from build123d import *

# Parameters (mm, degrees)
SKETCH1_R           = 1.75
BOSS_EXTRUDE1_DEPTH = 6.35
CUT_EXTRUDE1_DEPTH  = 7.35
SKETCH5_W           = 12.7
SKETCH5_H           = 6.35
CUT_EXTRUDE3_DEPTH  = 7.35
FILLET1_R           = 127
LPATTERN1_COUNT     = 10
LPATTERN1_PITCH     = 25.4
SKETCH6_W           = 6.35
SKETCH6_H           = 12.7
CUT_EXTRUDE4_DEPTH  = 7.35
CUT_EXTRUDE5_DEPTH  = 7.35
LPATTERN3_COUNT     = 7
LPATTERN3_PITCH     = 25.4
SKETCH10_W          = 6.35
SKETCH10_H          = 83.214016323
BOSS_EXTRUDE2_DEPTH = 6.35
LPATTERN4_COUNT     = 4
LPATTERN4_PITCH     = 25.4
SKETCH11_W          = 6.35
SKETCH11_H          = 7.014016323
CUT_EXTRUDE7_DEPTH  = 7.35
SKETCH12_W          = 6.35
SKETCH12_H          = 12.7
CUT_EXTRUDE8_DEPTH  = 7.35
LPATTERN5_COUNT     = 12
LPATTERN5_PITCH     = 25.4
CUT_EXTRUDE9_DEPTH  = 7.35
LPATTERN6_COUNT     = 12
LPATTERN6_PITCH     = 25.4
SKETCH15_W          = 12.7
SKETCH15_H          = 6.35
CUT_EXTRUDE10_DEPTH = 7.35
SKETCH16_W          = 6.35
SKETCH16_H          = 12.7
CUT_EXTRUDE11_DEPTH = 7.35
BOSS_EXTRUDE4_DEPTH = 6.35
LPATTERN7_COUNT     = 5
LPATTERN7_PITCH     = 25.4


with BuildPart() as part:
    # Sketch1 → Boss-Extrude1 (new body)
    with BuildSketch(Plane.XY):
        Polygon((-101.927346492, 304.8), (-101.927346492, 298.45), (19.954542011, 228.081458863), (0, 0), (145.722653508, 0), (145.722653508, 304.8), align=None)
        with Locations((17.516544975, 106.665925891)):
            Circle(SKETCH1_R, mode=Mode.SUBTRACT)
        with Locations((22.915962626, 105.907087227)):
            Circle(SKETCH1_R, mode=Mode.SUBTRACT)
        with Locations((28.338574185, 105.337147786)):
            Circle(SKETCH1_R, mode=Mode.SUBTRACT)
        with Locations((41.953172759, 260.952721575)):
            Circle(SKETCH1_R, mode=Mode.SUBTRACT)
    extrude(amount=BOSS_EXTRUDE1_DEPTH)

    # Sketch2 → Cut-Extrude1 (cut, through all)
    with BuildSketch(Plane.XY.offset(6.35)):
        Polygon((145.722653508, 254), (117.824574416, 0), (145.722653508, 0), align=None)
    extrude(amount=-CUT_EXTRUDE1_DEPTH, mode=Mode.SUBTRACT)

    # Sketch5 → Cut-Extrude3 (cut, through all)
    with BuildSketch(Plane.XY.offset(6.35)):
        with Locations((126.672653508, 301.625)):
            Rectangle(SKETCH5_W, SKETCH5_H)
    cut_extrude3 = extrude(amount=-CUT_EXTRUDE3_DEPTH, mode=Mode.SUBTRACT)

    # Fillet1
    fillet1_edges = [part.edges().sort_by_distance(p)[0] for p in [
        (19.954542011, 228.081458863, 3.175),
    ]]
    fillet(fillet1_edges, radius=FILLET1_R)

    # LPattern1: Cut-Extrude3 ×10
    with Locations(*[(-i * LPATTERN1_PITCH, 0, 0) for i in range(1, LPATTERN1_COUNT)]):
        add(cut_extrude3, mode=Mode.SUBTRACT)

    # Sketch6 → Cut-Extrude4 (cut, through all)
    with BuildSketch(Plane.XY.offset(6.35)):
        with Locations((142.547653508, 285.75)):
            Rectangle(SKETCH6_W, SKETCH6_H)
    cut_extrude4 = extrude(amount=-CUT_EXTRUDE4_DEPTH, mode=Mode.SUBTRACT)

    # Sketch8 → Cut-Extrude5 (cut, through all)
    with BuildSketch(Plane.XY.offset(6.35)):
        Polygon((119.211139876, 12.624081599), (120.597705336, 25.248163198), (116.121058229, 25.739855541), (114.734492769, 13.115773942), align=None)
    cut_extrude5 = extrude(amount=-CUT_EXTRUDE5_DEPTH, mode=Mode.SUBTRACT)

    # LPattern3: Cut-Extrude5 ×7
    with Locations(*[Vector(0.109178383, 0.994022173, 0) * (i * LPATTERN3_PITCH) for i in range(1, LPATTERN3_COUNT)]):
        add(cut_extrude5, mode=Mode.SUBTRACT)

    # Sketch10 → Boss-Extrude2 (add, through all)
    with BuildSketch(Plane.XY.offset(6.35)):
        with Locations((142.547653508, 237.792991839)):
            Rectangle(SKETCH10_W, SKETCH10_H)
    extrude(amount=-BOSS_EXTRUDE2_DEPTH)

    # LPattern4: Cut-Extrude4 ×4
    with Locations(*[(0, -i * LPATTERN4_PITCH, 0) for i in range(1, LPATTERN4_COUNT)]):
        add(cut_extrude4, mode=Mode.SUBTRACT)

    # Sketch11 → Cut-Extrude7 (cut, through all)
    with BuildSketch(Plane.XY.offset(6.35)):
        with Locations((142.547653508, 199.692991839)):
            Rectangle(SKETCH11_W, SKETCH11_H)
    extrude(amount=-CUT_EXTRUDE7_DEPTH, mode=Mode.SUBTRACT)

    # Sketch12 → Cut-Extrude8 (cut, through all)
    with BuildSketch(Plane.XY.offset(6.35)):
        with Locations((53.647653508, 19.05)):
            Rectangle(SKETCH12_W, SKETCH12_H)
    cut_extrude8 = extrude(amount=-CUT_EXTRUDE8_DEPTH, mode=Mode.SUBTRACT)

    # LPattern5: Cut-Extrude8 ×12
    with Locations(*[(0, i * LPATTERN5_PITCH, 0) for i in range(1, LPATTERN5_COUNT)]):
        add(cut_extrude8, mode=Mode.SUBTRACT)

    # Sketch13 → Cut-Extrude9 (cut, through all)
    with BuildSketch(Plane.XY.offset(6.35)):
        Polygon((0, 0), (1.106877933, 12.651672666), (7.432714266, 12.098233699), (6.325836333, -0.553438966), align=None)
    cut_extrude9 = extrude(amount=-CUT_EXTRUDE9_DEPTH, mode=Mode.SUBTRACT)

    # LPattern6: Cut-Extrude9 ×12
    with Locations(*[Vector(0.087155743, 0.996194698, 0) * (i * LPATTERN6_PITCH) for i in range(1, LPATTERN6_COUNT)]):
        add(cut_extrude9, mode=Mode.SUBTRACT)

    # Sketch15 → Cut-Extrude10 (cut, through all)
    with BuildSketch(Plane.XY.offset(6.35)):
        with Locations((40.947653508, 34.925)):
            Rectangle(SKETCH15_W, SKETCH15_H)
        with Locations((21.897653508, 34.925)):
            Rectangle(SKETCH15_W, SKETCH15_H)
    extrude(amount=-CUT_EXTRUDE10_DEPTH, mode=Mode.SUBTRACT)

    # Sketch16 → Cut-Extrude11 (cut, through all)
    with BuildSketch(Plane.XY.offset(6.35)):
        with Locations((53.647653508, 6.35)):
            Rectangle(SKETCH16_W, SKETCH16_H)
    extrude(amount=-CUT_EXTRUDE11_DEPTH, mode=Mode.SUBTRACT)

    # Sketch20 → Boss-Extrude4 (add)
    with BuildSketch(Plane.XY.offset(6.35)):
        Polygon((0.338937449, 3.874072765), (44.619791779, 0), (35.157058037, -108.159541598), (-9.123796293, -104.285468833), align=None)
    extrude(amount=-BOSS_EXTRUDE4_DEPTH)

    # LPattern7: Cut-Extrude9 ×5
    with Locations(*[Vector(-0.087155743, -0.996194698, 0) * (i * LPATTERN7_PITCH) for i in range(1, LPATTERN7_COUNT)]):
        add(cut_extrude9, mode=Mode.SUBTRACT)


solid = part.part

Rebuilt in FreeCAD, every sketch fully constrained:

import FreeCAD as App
import Part
import Sketcher
Q = App.Units.Quantity


def edges_at(feature, points):
    """Names of the edges that pass closest to the given points."""
    edges = feature.Shape.Edges
    near = lambda p: min(range(len(edges)), key=lambda i: edges[i].distToShape(Part.Vertex(*p))[0])
    return sorted({f"Edge{near(p) + 1}" for p in points})

doc = App.newDocument("Part")
body = doc.addObject("PartDesign::Body", "Body")

# Sketch on XY plane
sketch1 = doc.addObject("Sketcher::SketchObject", "Sketch")
body.addObject(sketch1)
sketch1.AttachmentSupport = (doc.XY_Plane, [""])
sketch1.MapMode = "FlatFace"
sketch1.addGeometry([
    Part.LineSegment(App.Vector(-101.9, 304.8, 0), App.Vector(-101.9, 298.4, 0)),  # 0
    Part.LineSegment(App.Vector(-101.9, 298.4, 0), App.Vector(20, 228.1, 0)),  # 1
    Part.LineSegment(App.Vector(20, 228.1, 0), App.Vector(0, 0, 0)),  # 2
    Part.LineSegment(App.Vector(0, 0, 0), App.Vector(145.7, 0, 0)),  # 3
    Part.LineSegment(App.Vector(145.7, 0, 0), App.Vector(145.7, 304.8, 0)),  # 4
    Part.LineSegment(App.Vector(145.7, 304.8, 0), App.Vector(-101.9, 304.8, 0)),  # 5
    Part.Circle(App.Vector(17.5, 106.7, 0), App.Vector(0, 0, 1), 1.8),  # 6
    Part.Circle(App.Vector(22.9, 105.9, 0), App.Vector(0, 0, 1), 1.8),  # 7
    Part.Circle(App.Vector(28.3, 105.3, 0), App.Vector(0, 0, 1), 1.8),  # 8
    Part.Circle(App.Vector(42, 261, 0), App.Vector(0, 0, 1), 1.8),  # 9
], False)
sketch1.addConstraint([
    Sketcher.Constraint("Coincident", 0, 2, 1, 1),
    Sketcher.Constraint("Coincident", 1, 2, 2, 1),
    Sketcher.Constraint("Coincident", 2, 2, 3, 1),
    Sketcher.Constraint("Coincident", 3, 2, 4, 1),
    Sketcher.Constraint("Coincident", 4, 2, 5, 1),
    Sketcher.Constraint("Coincident", 5, 2, 0, 1),
    Sketcher.Constraint("Vertical", 0),
    Sketcher.Constraint("Horizontal", 3),
    Sketcher.Constraint("Vertical", 4),
    Sketcher.Constraint("Horizontal", 5),
    Sketcher.Constraint("Coincident", 2, 2, -1, 1),
    Sketcher.Constraint("Equal", 6, 7),
    Sketcher.Constraint("Equal", 7, 8),
    Sketcher.Constraint("Equal", 8, 9),
    Sketcher.Constraint("DistanceY", 4, 1, 4, 2, Q("12 in")),
    Sketcher.Constraint("Angle", 1, Q("-30 deg")),
    Sketcher.Constraint("Angle", 2, Q("-95 deg")),
    Sketcher.Constraint("DistanceX", 5, 2, 5, 1, Q("9.75 in")),
    Sketcher.Constraint("DistanceY", 0, 2, 0, 1, Q("0.25 in")),
    Sketcher.Constraint("Diameter", 6, Q("3.5 mm")),
    Sketcher.Constraint("DistanceX", 8, 3, 9, 3, Q("13.614599 mm")),
    Sketcher.Constraint("DistanceX", 3, 1, 3, 2, Q("145.722654 mm")),
    Sketcher.Constraint("DistanceY", -1, 1, 9, 3, Q("260.952722 mm")),
    Sketcher.Constraint("DistanceY", 7, 3, 6, 3, Q("0.758839 mm")),
    Sketcher.Constraint("DistanceX", 7, 3, 8, 3, Q("5.422612 mm")),
    Sketcher.Constraint("DistanceY", 8, 3, 7, 3, Q("0.569939 mm")),
    Sketcher.Constraint("DistanceX", 6, 3, 8, 3, Q("10.822029 mm")),
    Sketcher.Constraint("DistanceX", 0, 2, 9, 3, Q("143.880519 mm")),
    Sketcher.Constraint("DistanceY", 7, 3, 1, 2, Q("122.174372 mm")),
])
pad1 = doc.addObject("PartDesign::Pad", "Pad")
body.addObject(pad1)
pad1.Profile = sketch1
pad1.Length = Q("0.25 in")

# Sketch on XY plane
sketch2 = doc.addObject("Sketcher::SketchObject", "Sketch001")
body.addObject(sketch2)
sketch2.AttachmentSupport = (doc.XY_Plane, [""])
sketch2.MapMode = "FlatFace"
sketch2.AttachmentOffset = App.Placement(App.Vector(0, 0, 0.25 * 25.4), App.Rotation())
sketch2.addGeometry([
    Part.LineSegment(App.Vector(146, 254, 0), App.Vector(118, 0, 0)),
    Part.LineSegment(App.Vector(118, 0, 0), App.Vector(146, 0, 0)),
    Part.LineSegment(App.Vector(146, 0, 0), App.Vector(146, 254, 0)),
], False)
sketch2.addConstraint([
    Sketcher.Constraint("Coincident", 0, 2, 1, 1),
    Sketcher.Constraint("Coincident", 1, 2, 2, 1),
    Sketcher.Constraint("Coincident", 2, 2, 0, 1),
    Sketcher.Constraint("Horizontal", 1),
    Sketcher.Constraint("Vertical", 2),
    Sketcher.Constraint("PointOnObject", 0, 2, -1),
    Sketcher.Constraint("DistanceY", 2, 1, 2, 2, Q("10 in")),
    Sketcher.Constraint("Distance", 0, Q("255.527499 mm")),
    Sketcher.Constraint("DistanceX", -1, 1, 0, 2, Q("117.824574 mm")),
])
pocket1 = doc.addObject("PartDesign::Pocket", "Pocket")
body.addObject(pocket1)
pocket1.Profile = sketch2
pocket1.Type = "ThroughAll"

# Sketch on XY plane
sketch3 = doc.addObject("Sketcher::SketchObject", "Sketch002")
body.addObject(sketch3)
sketch3.AttachmentSupport = (doc.XY_Plane, [""])
sketch3.MapMode = "FlatFace"
sketch3.AttachmentOffset = App.Placement(App.Vector(0, 0, 0.25 * 25.4), App.Rotation())
sketch3.addGeometry([
    Part.LineSegment(App.Vector(120, 305, 0), App.Vector(120, 298, 0)),
    Part.LineSegment(App.Vector(120, 298, 0), App.Vector(133, 298, 0)),
    Part.LineSegment(App.Vector(133, 298, 0), App.Vector(133, 305, 0)),
    Part.LineSegment(App.Vector(133, 305, 0), App.Vector(120, 305, 0)),
], False)
sketch3.addConstraint([
    Sketcher.Constraint("Coincident", 0, 2, 1, 1),
    Sketcher.Constraint("Coincident", 1, 2, 2, 1),
    Sketcher.Constraint("Coincident", 2, 2, 3, 1),
    Sketcher.Constraint("Coincident", 3, 2, 0, 1),
    Sketcher.Constraint("Vertical", 0),
    Sketcher.Constraint("Horizontal", 1),
    Sketcher.Constraint("Vertical", 2),
    Sketcher.Constraint("Horizontal", 3),
    Sketcher.Constraint("DistanceX", 1, 1, 1, 2, Q("0.5 in")),
    Sketcher.Constraint("DistanceY", -1, 1, 2, 2, Q("12 in")),
    Sketcher.Constraint("DistanceY", 0, 2, 0, 1, Q("0.25 in")),
    Sketcher.Constraint("DistanceX", -1, 1, 0, 2, Q("120.322654 mm")),
])
pocket2 = doc.addObject("PartDesign::Pocket", "Pocket001")
body.addObject(pocket2)
pocket2.Profile = sketch3
pocket2.Type = "ThroughAll"
doc.recompute()

fillet = doc.addObject("PartDesign::Fillet", "Fillet")
body.addObject(fillet)
fillet.Base = (pocket2, edges_at(pocket2, [(19.955, 228.081, 3.175)]))
fillet.Radius = Q("5 in")
doc.recompute()

linearpattern = doc.addObject("PartDesign::LinearPattern", "LinearPattern")
body.addObject(linearpattern)
linearpattern.Originals = [pocket2]
linearpattern.Direction = (doc.X_Axis, [""])
linearpattern.Mode = "offset"
linearpattern.Offset = Q("1 in")
linearpattern.Occurrences = 10
linearpattern.Reversed = True
body.Tip = linearpattern

# Sketch on XY plane
sketch4 = doc.addObject("Sketcher::SketchObject", "Sketch003")
body.addObject(sketch4)
sketch4.AttachmentSupport = (doc.XY_Plane, [""])
sketch4.MapMode = "FlatFace"
sketch4.AttachmentOffset = App.Placement(App.Vector(0, 0, 0.25 * 25.4), App.Rotation())
sketch4.addGeometry([
    Part.LineSegment(App.Vector(139, 292, 0), App.Vector(139, 279, 0)),
    Part.LineSegment(App.Vector(139, 279, 0), App.Vector(146, 279, 0)),
    Part.LineSegment(App.Vector(146, 279, 0), App.Vector(146, 292, 0)),
    Part.LineSegment(App.Vector(146, 292, 0), App.Vector(139, 292, 0)),
], False)
sketch4.addConstraint([
    Sketcher.Constraint("Coincident", 0, 2, 1, 1),
    Sketcher.Constraint("Coincident", 1, 2, 2, 1),
    Sketcher.Constraint("Coincident", 2, 2, 3, 1),
    Sketcher.Constraint("Coincident", 3, 2, 0, 1),
    Sketcher.Constraint("Vertical", 0),
    Sketcher.Constraint("Horizontal", 1),
    Sketcher.Constraint("Vertical", 2),
    Sketcher.Constraint("Horizontal", 3),
    Sketcher.Constraint("DistanceY", 0, 2, 0, 1, Q("0.5 in")),
    Sketcher.Constraint("DistanceY", -1, 1, 0, 2, Q("11 in")),
    Sketcher.Constraint("DistanceX", 1, 1, 1, 2, Q("0.25 in")),
    Sketcher.Constraint("DistanceX", -1, 1, 0, 2, Q("139.372654 mm")),
])
pocket3 = doc.addObject("PartDesign::Pocket", "Pocket002")
body.addObject(pocket3)
pocket3.Profile = sketch4
pocket3.Type = "ThroughAll"

# Sketch on XY plane
sketch5 = doc.addObject("Sketcher::SketchObject", "Sketch004")
body.addObject(sketch5)
sketch5.AttachmentSupport = (doc.XY_Plane, [""])
sketch5.MapMode = "FlatFace"
sketch5.AttachmentOffset = App.Placement(App.Vector(0, 0, 0.25 * 25.4), App.Rotation())
sketch5.addGeometry([
    Part.LineSegment(App.Vector(119.2, 12.6, 0), App.Vector(120.6, 25.2, 0)),
    Part.LineSegment(App.Vector(120.6, 25.2, 0), App.Vector(116.1, 25.7, 0)),
    Part.LineSegment(App.Vector(116.1, 25.7, 0), App.Vector(114.7, 13.1, 0)),
    Part.LineSegment(App.Vector(114.7, 13.1, 0), App.Vector(119.2, 12.6, 0)),
], False)
sketch5.addConstraint([
    Sketcher.Constraint("Coincident", 0, 2, 1, 1),
    Sketcher.Constraint("Coincident", 1, 2, 2, 1),
    Sketcher.Constraint("Coincident", 2, 2, 3, 1),
    Sketcher.Constraint("Coincident", 3, 2, 0, 1),
    Sketcher.Constraint("Perpendicular", 0, 1),
    Sketcher.Constraint("Perpendicular", 1, 2),
    Sketcher.Constraint("Perpendicular", 2, 3),
    Sketcher.Constraint("Distance", 0, Q("0.5 in")),
    Sketcher.Constraint("Distance", 1, Q("4.503569 mm")),
    Sketcher.Constraint("DistanceX", -1, 1, 1, 2, Q("116.121058 mm")),
    Sketcher.Constraint("DistanceX", -1, 1, 3, 2, Q("119.21114 mm")),
    Sketcher.Constraint("DistanceY", -1, 1, 3, 2, Q("12.624082 mm")),
])
pocket4 = doc.addObject("PartDesign::Pocket", "Pocket003")
body.addObject(pocket4)
pocket4.Profile = sketch5
pocket4.Type = "ThroughAll"
doc.recompute()

datumline = doc.addObject("PartDesign::Line", "DatumLine")
body.addObject(datumline)
datumline.Placement = App.Placement(App.Vector(0, 0, 0), App.Rotation(App.Vector(0, 0, 1), App.Vector(0.109178383, 0.994022173, 0)))
linearpattern2 = doc.addObject("PartDesign::LinearPattern", "LinearPattern001")
body.addObject(linearpattern2)
linearpattern2.Originals = [pocket4]
linearpattern2.Direction = (datumline, [""])
linearpattern2.Mode = "offset"
linearpattern2.Offset = Q("1 in")
linearpattern2.Occurrences = 7
body.Tip = linearpattern2

# Sketch on XY plane
sketch6 = doc.addObject("Sketcher::SketchObject", "Sketch005")
body.addObject(sketch6)
sketch6.AttachmentSupport = (doc.XY_Plane, [""])
sketch6.MapMode = "FlatFace"
sketch6.AttachmentOffset = App.Placement(App.Vector(0, 0, 0.25 * 25.4), App.Rotation())
sketch6.addGeometry([
    Part.LineSegment(App.Vector(139, 279, 0), App.Vector(139, 196, 0)),
    Part.LineSegment(App.Vector(139, 196, 0), App.Vector(146, 196, 0)),
    Part.LineSegment(App.Vector(146, 196, 0), App.Vector(146, 279, 0)),
    Part.LineSegment(App.Vector(146, 279, 0), App.Vector(139, 279, 0)),
], False)
sketch6.addConstraint([
    Sketcher.Constraint("Coincident", 0, 2, 1, 1),
    Sketcher.Constraint("Coincident", 1, 2, 2, 1),
    Sketcher.Constraint("Coincident", 2, 2, 3, 1),
    Sketcher.Constraint("Coincident", 3, 2, 0, 1),
    Sketcher.Constraint("Vertical", 0),
    Sketcher.Constraint("Horizontal", 1),
    Sketcher.Constraint("Vertical", 2),
    Sketcher.Constraint("Horizontal", 3),
    Sketcher.Constraint("DistanceY", -1, 1, 2, 2, Q("11 in")),
    Sketcher.Constraint("DistanceX", 1, 1, 1, 2, Q("0.25 in")),
    Sketcher.Constraint("DistanceY", 0, 2, 0, 1, Q("83.214016 mm")),
    Sketcher.Constraint("DistanceX", -1, 1, 0, 2, Q("139.372654 mm")),
])
pad2 = doc.addObject("PartDesign::Pad", "Pad001")
body.addObject(pad2)
pad2.Profile = sketch6
pad2.Type = "UpToLast"
pad2.Reversed = True
doc.recompute()

linearpattern3 = doc.addObject("PartDesign::LinearPattern", "LinearPattern002")
body.addObject(linearpattern3)
linearpattern3.Originals = [pocket3]
linearpattern3.Direction = (doc.Y_Axis, [""])
linearpattern3.Mode = "offset"
linearpattern3.Offset = Q("1 in")
linearpattern3.Occurrences = 4
linearpattern3.Reversed = True
body.Tip = linearpattern3

# Sketch on XY plane
sketch7 = doc.addObject("Sketcher::SketchObject", "Sketch006")
body.addObject(sketch7)
sketch7.AttachmentSupport = (doc.XY_Plane, [""])
sketch7.MapMode = "FlatFace"
sketch7.AttachmentOffset = App.Placement(App.Vector(0, 0, 0.25 * 25.4), App.Rotation())
sketch7.addGeometry([
    Part.LineSegment(App.Vector(139, 203, 0), App.Vector(139, 196, 0)),
    Part.LineSegment(App.Vector(139, 196, 0), App.Vector(146, 196, 0)),
    Part.LineSegment(App.Vector(146, 196, 0), App.Vector(146, 203, 0)),
    Part.LineSegment(App.Vector(146, 203, 0), App.Vector(139, 203, 0)),
], False)
sketch7.addConstraint([
    Sketcher.Constraint("Coincident", 0, 2, 1, 1),
    Sketcher.Constraint("Coincident", 1, 2, 2, 1),
    Sketcher.Constraint("Coincident", 2, 2, 3, 1),
    Sketcher.Constraint("Coincident", 3, 2, 0, 1),
    Sketcher.Constraint("Vertical", 0),
    Sketcher.Constraint("Horizontal", 1),
    Sketcher.Constraint("Vertical", 2),
    Sketcher.Constraint("Horizontal", 3),
    Sketcher.Constraint("DistanceY", -1, 1, 2, 2, Q("8 in")),
    Sketcher.Constraint("DistanceX", 1, 1, 1, 2, Q("0.25 in")),
    Sketcher.Constraint("DistanceY", 0, 2, 0, 1, Q("7.014016 mm")),
    Sketcher.Constraint("DistanceX", -1, 1, 0, 2, Q("139.372654 mm")),
])
pocket5 = doc.addObject("PartDesign::Pocket", "Pocket004")
body.addObject(pocket5)
pocket5.Profile = sketch7
pocket5.Type = "ThroughAll"

# Sketch on XY plane
sketch8 = doc.addObject("Sketcher::SketchObject", "Sketch007")
body.addObject(sketch8)
sketch8.AttachmentSupport = (doc.XY_Plane, [""])
sketch8.MapMode = "FlatFace"
sketch8.AttachmentOffset = App.Placement(App.Vector(0, 0, 0.25 * 25.4), App.Rotation())
sketch8.addGeometry([
    Part.LineSegment(App.Vector(50, 25, 0), App.Vector(50, 13, 0)),
    Part.LineSegment(App.Vector(50, 13, 0), App.Vector(57, 13, 0)),
    Part.LineSegment(App.Vector(57, 13, 0), App.Vector(57, 25, 0)),
    Part.LineSegment(App.Vector(57, 25, 0), App.Vector(50, 25, 0)),
], False)
sketch8.addConstraint([
    Sketcher.Constraint("Coincident", 0, 2, 1, 1),
    Sketcher.Constraint("Coincident", 1, 2, 2, 1),
    Sketcher.Constraint("Coincident", 2, 2, 3, 1),
    Sketcher.Constraint("Coincident", 3, 2, 0, 1),
    Sketcher.Constraint("Vertical", 0),
    Sketcher.Constraint("Horizontal", 1),
    Sketcher.Constraint("Vertical", 2),
    Sketcher.Constraint("Horizontal", 3),
    Sketcher.Constraint("DistanceY", 0, 2, 0, 1, Q("0.5 in")),
    Sketcher.Constraint("DistanceY", -1, 1, 2, 2, Q("1 in")),
    Sketcher.Constraint("DistanceX", 1, 1, 1, 2, Q("0.25 in")),
    Sketcher.Constraint("DistanceX", -1, 1, 0, 2, Q("50.472654 mm")),
])
pocket6 = doc.addObject("PartDesign::Pocket", "Pocket005")
body.addObject(pocket6)
pocket6.Profile = sketch8
pocket6.Type = "ThroughAll"
doc.recompute()

linearpattern4 = doc.addObject("PartDesign::LinearPattern", "LinearPattern003")
body.addObject(linearpattern4)
linearpattern4.Originals = [pocket6]
linearpattern4.Direction = (doc.Y_Axis, [""])
linearpattern4.Mode = "offset"
linearpattern4.Offset = Q("1 in")
linearpattern4.Occurrences = 12
body.Tip = linearpattern4

# Sketch on XY plane
sketch9 = doc.addObject("Sketcher::SketchObject", "Sketch008")
body.addObject(sketch9)
sketch9.AttachmentSupport = (doc.XY_Plane, [""])
sketch9.MapMode = "FlatFace"
sketch9.AttachmentOffset = App.Placement(App.Vector(0, 0, 0.25 * 25.4), App.Rotation())
sketch9.addGeometry([
    Part.LineSegment(App.Vector(1, 13, 0), App.Vector(0, 0, 0)),
    Part.LineSegment(App.Vector(0, 0, 0), App.Vector(6, -1, 0)),
    Part.LineSegment(App.Vector(6, -1, 0), App.Vector(7, 12, 0)),
    Part.LineSegment(App.Vector(7, 12, 0), App.Vector(1, 13, 0)),
], False)
sketch9.addConstraint([
    Sketcher.Constraint("Coincident", 0, 2, 1, 1),
    Sketcher.Constraint("Coincident", 1, 2, 2, 1),
    Sketcher.Constraint("Coincident", 2, 2, 3, 1),
    Sketcher.Constraint("Coincident", 3, 2, 0, 1),
    Sketcher.Constraint("Coincident", 0, 2, -1, 1),
    Sketcher.Constraint("Perpendicular", 0, 1),
    Sketcher.Constraint("Perpendicular", 1, 2),
    Sketcher.Constraint("Perpendicular", 2, 3),
    Sketcher.Constraint("Angle", 0, Q("-95 deg")),
    Sketcher.Constraint("Distance", 0, Q("0.5 in")),
    Sketcher.Constraint("Distance", 1, Q("0.25 in")),
])
pocket7 = doc.addObject("PartDesign::Pocket", "Pocket006")
body.addObject(pocket7)
pocket7.Profile = sketch9
pocket7.Type = "ThroughAll"
doc.recompute()

datumline2 = doc.addObject("PartDesign::Line", "DatumLine001")
body.addObject(datumline2)
datumline2.Placement = App.Placement(App.Vector(0, 0, 0), App.Rotation(App.Vector(0, 0, 1), App.Vector(0.087155743, 0.996194698, 0)))
linearpattern5 = doc.addObject("PartDesign::LinearPattern", "LinearPattern004")
body.addObject(linearpattern5)
linearpattern5.Originals = [pocket7]
linearpattern5.Direction = (datumline2, [""])
linearpattern5.Mode = "offset"
linearpattern5.Offset = Q("1 in")
linearpattern5.Occurrences = 12
body.Tip = linearpattern5

# Sketch on XY plane
sketch10 = doc.addObject("Sketcher::SketchObject", "Sketch009")
body.addObject(sketch10)
sketch10.AttachmentSupport = (doc.XY_Plane, [""])
sketch10.MapMode = "FlatFace"
sketch10.AttachmentOffset = App.Placement(App.Vector(0, 0, 0.25 * 25.4), App.Rotation())
sketch10.addGeometry([
    Part.LineSegment(App.Vector(35, 38, 0), App.Vector(35, 32, 0)),  # 0
    Part.LineSegment(App.Vector(35, 32, 0), App.Vector(47, 32, 0)),  # 1
    Part.LineSegment(App.Vector(47, 32, 0), App.Vector(47, 38, 0)),  # 2
    Part.LineSegment(App.Vector(47, 38, 0), App.Vector(35, 38, 0)),  # 3
    Part.LineSegment(App.Vector(16, 38, 0), App.Vector(16, 32, 0)),  # 4
    Part.LineSegment(App.Vector(16, 32, 0), App.Vector(28, 32, 0)),  # 5
    Part.LineSegment(App.Vector(28, 32, 0), App.Vector(28, 38, 0)),  # 6
    Part.LineSegment(App.Vector(28, 38, 0), App.Vector(16, 38, 0)),  # 7
], False)
sketch10.addConstraint([
    Sketcher.Constraint("Coincident", 0, 2, 1, 1),
    Sketcher.Constraint("Coincident", 1, 2, 2, 1),
    Sketcher.Constraint("Coincident", 2, 2, 3, 1),
    Sketcher.Constraint("Coincident", 3, 2, 0, 1),
    Sketcher.Constraint("Coincident", 4, 2, 5, 1),
    Sketcher.Constraint("Coincident", 5, 2, 6, 1),
    Sketcher.Constraint("Coincident", 6, 2, 7, 1),
    Sketcher.Constraint("Coincident", 7, 2, 4, 1),
    Sketcher.Constraint("Vertical", 0),
    Sketcher.Constraint("Horizontal", 1),
    Sketcher.Constraint("Vertical", 2),
    Sketcher.Constraint("Horizontal", 3),
    Sketcher.Constraint("Vertical", 4),
    Sketcher.Constraint("Horizontal", 5),
    Sketcher.Constraint("Vertical", 6),
    Sketcher.Constraint("Horizontal", 7),
    Sketcher.Constraint("Horizontal", 1, 2, 4, 2),
    Sketcher.Constraint("Horizontal", 3, 2, 6, 2),
    Sketcher.Constraint("Equal", 3, 5),
    Sketcher.Constraint("DistanceX", 1, 1, 1, 2, Q("0.5 in")),
    Sketcher.Constraint("DistanceY", 0, 2, 0, 1, Q("0.25 in")),
    Sketcher.Constraint("DistanceY", -1, 1, 2, 2, Q("1.5 in")),
    Sketcher.Constraint("DistanceX", 4, 2, 0, 2, Q("0.75 in")),
    Sketcher.Constraint("DistanceX", -1, 1, 0, 2, Q("34.597654 mm")),
])
pocket8 = doc.addObject("PartDesign::Pocket", "Pocket007")
body.addObject(pocket8)
pocket8.Profile = sketch10
pocket8.Type = "ThroughAll"

# Sketch on XY plane
sketch11 = doc.addObject("Sketcher::SketchObject", "Sketch010")
body.addObject(sketch11)
sketch11.AttachmentSupport = (doc.XY_Plane, [""])
sketch11.MapMode = "FlatFace"
sketch11.AttachmentOffset = App.Placement(App.Vector(0, 0, 0.25 * 25.4), App.Rotation())
sketch11.addGeometry([
    Part.LineSegment(App.Vector(50, 13, 0), App.Vector(50, 0, 0)),
    Part.LineSegment(App.Vector(50, 0, 0), App.Vector(57, 0, 0)),
    Part.LineSegment(App.Vector(57, 0, 0), App.Vector(57, 13, 0)),
    Part.LineSegment(App.Vector(57, 13, 0), App.Vector(50, 13, 0)),
], False)
sketch11.addConstraint([
    Sketcher.Constraint("Coincident", 0, 2, 1, 1),
    Sketcher.Constraint("Coincident", 1, 2, 2, 1),
    Sketcher.Constraint("Coincident", 2, 2, 3, 1),
    Sketcher.Constraint("Coincident", 3, 2, 0, 1),
    Sketcher.Constraint("Vertical", 0),
    Sketcher.Constraint("Horizontal", 1),
    Sketcher.Constraint("Vertical", 2),
    Sketcher.Constraint("Horizontal", 3),
    Sketcher.Constraint("PointOnObject", 0, 2, -1),
    Sketcher.Constraint("DistanceY", 0, 2, 0, 1, Q("0.5 in")),
    Sketcher.Constraint("DistanceX", 1, 1, 1, 2, Q("0.25 in")),
    Sketcher.Constraint("DistanceX", -1, 1, 0, 2, Q("50.472654 mm")),
])
pocket9 = doc.addObject("PartDesign::Pocket", "Pocket008")
body.addObject(pocket9)
pocket9.Profile = sketch11
pocket9.Type = "ThroughAll"

# Sketch on XY plane
sketch12 = doc.addObject("Sketcher::SketchObject", "Sketch011")
body.addObject(sketch12)
sketch12.AttachmentSupport = (doc.XY_Plane, [""])
sketch12.MapMode = "FlatFace"
sketch12.AttachmentOffset = App.Placement(App.Vector(0, 0, 0.25 * 25.4), App.Rotation())
sketch12.addGeometry([
    Part.LineSegment(App.Vector(45, 0, 0), App.Vector(0, 4, 0)),
    Part.LineSegment(App.Vector(0, 4, 0), App.Vector(-9, -104, 0)),
    Part.LineSegment(App.Vector(-9, -104, 0), App.Vector(35, -108, 0)),
    Part.LineSegment(App.Vector(35, -108, 0), App.Vector(45, 0, 0)),
], False)
sketch12.addConstraint([
    Sketcher.Constraint("Coincident", 0, 2, 1, 1),
    Sketcher.Constraint("Coincident", 1, 2, 2, 1),
    Sketcher.Constraint("Coincident", 2, 2, 3, 1),
    Sketcher.Constraint("Coincident", 3, 2, 0, 1),
    Sketcher.Constraint("PointOnObject", 3, 2, -1),
    Sketcher.Constraint("Perpendicular", 0, 1),
    Sketcher.Constraint("Perpendicular", 1, 2),
    Sketcher.Constraint("Perpendicular", 2, 3),
    Sketcher.Constraint("Angle", 0, Q("175 deg")),
    Sketcher.Constraint("Distance", 0, Q("1.75 in")),
    Sketcher.Constraint("DistanceY", 1, 2, -1, 1, Q("104.285469 mm")),
    Sketcher.Constraint("DistanceX", -1, 1, 2, 2, Q("35.157058 mm")),
])
pad3 = doc.addObject("PartDesign::Pad", "Pad002")
body.addObject(pad3)
pad3.Profile = sketch12
pad3.Length = Q("0.25 in")
pad3.Reversed = True
doc.recompute()

datumline3 = doc.addObject("PartDesign::Line", "DatumLine002")
body.addObject(datumline3)
datumline3.Placement = App.Placement(App.Vector(0, 0, 0), App.Rotation(App.Vector(0, 0, 1), App.Vector(-0.087155743, -0.996194698, 0)))
linearpattern6 = doc.addObject("PartDesign::LinearPattern", "LinearPattern005")
body.addObject(linearpattern6)
linearpattern6.Originals = [pocket7]
linearpattern6.Direction = (datumline3, [""])
linearpattern6.Mode = "offset"
linearpattern6.Offset = Q("1 in")
linearpattern6.Occurrences = 5
body.Tip = linearpattern6

doc.recompute()
